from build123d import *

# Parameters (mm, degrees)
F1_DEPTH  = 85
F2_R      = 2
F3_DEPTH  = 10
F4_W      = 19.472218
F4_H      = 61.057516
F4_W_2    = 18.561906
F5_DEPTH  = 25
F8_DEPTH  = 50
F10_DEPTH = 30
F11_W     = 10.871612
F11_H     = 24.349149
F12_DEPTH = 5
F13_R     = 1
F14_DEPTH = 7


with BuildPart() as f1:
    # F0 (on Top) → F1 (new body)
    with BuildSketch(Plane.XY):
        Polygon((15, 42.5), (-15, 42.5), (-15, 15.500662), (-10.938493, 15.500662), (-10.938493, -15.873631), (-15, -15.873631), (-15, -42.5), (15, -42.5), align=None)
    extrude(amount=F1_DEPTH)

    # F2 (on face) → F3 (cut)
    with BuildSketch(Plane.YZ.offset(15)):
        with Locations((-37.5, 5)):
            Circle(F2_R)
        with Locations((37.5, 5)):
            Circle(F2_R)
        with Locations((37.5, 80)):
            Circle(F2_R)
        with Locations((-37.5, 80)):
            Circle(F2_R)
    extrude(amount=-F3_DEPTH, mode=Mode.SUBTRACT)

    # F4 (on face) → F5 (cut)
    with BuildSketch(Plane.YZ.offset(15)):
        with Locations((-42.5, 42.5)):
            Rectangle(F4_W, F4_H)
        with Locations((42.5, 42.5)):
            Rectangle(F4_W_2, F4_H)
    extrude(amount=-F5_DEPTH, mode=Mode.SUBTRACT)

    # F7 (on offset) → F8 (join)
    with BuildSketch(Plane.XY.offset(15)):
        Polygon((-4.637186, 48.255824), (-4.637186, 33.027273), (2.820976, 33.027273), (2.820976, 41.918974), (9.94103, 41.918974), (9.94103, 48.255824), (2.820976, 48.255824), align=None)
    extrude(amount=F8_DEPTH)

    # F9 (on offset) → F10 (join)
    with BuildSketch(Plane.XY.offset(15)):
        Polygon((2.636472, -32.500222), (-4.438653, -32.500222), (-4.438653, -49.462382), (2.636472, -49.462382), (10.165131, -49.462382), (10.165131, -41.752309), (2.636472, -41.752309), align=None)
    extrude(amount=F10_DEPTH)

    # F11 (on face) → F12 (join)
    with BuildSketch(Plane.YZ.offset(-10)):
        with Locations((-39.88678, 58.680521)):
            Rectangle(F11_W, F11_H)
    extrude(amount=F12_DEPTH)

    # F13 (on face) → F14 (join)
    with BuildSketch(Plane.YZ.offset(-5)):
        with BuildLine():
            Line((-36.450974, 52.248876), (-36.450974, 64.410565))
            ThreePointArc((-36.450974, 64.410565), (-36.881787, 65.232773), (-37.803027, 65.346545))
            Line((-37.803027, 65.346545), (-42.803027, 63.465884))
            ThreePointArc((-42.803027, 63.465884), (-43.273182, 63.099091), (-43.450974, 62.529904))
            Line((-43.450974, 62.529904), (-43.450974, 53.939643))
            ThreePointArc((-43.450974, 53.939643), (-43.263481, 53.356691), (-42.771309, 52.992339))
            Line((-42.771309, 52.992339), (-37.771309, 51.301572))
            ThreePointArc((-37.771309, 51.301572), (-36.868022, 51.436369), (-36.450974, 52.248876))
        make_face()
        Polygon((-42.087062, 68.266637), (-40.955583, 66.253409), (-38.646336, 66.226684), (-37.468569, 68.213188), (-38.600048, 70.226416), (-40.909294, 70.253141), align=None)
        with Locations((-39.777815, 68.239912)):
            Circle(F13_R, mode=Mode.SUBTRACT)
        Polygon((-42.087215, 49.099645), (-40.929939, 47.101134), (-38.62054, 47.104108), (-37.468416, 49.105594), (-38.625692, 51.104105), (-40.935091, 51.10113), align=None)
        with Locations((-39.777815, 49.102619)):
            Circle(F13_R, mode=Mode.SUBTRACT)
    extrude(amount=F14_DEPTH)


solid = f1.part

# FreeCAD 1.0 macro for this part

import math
import FreeCAD as App
import Part
import Sketcher
Q = App.Units.Quantity


def add_polygon(sketch, points):
    """Adds a closed chain of lines whose ends are joined by coincident constraints."""
    first, n = sketch.GeometryCount, len(points)
    for a, b in zip(points, points[1:] + points[:1]):
        sketch.addGeometry(Part.LineSegment(App.Vector(*a, 0), App.Vector(*b, 0)), False)
    for i in range(n):
        sketch.addConstraint(Sketcher.Constraint("Coincident", first + i, 2, first + (i + 1) % n, 1))

doc = App.newDocument("Part")
body = doc.addObject("PartDesign::Body", "Body")

sketch1 = doc.addObject("Sketcher::SketchObject", "Sketch")
body.addObject(sketch1)
sketch1.AttachmentSupport = (doc.XY_Plane, [""])
sketch1.MapMode = "FlatFace"
add_polygon(sketch1, [(15, 42.5), (-15, 42.5), (-15, 15.5), (-10.9, 15.5), (-10.9, -15.9), (-15, -15.9), (-15, -42.5), (15, -42.5)])
sketch1.addConstraint(Sketcher.Constraint("Horizontal", 0))
sketch1.addConstraint(Sketcher.Constraint("Vertical", 1))
sketch1.addConstraint(Sketcher.Constraint("Horizontal", 2))
sketch1.addConstraint(Sketcher.Constraint("Vertical", 3))
sketch1.addConstraint(Sketcher.Constraint("Horizontal", 4))
sketch1.addConstraint(Sketcher.Constraint("Vertical", 5))
sketch1.addConstraint(Sketcher.Constraint("Horizontal", 6))
sketch1.addConstraint(Sketcher.Constraint("Vertical", 7))
sketch1.addConstraint(Sketcher.Constraint("Symmetric", 0, 2, 6, 2, -1, 1))
sketch1.addConstraint(Sketcher.Constraint("Vertical", 1, 2, 4, 2))
sketch1.addConstraint(Sketcher.Constraint("DistanceX", 0, 2, 0, 1, Q("30 mm")))
sketch1.addConstraint(Sketcher.Constraint("DistanceY", 7, 1, 7, 2, Q("85 mm")))
sketch1.addConstraint(Sketcher.Constraint("DistanceY", 1, 2, 1, 1, Q("26.999338 mm")))
sketch1.addConstraint(Sketcher.Constraint("DistanceY", 5, 2, 5, 1, Q("26.626369 mm")))
sketch1.addConstraint(Sketcher.Constraint("DistanceX", 2, 1, 2, 2, Q("4.061507 mm")))
pad1 = doc.addObject("PartDesign::Pad", "Pad")
body.addObject(pad1)
pad1.Profile = sketch1
pad1.Length = 85

sketch2 = doc.addObject("Sketcher::SketchObject", "Sketch001")
body.addObject(sketch2)
sketch2.AttachmentSupport = (doc.YZ_Plane, [""])
sketch2.MapMode = "FlatFace"
sketch2.AttachmentOffset = App.Placement(App.Vector(0, 0, 15), App.Rotation())
sketch2.addGeometry(Part.Circle(App.Vector(-37.5, 5, 0), App.Vector(0, 0, 1), 2), False)
sketch2.addGeometry(Part.Circle(App.Vector(37.5, 5, 0), App.Vector(0, 0, 1), 2), False)
sketch2.addGeometry(Part.Circle(App.Vector(37.5, 80, 0), App.Vector(0, 0, 1), 2), False)
sketch2.addGeometry(Part.Circle(App.Vector(-37.5, 80, 0), App.Vector(0, 0, 1), 2), False)
sketch2.addConstraint(Sketcher.Constraint("Equal", 0, 1))
sketch2.addConstraint(Sketcher.Constraint("Equal", 1, 2))
sketch2.addConstraint(Sketcher.Constraint("Equal", 2, 3))
sketch2.addConstraint(Sketcher.Constraint("Symmetric", 0, 3, 1, 3, -2))
sketch2.addConstraint(Sketcher.Constraint("Symmetric", 2, 3, 3, 3, -2))
sketch2.addConstraint(Sketcher.Constraint("Vertical", 1, 3, 2, 3))
sketch2.addConstraint(Sketcher.Constraint("Diameter", 0, Q("4 mm")))
sketch2.addConstraint(Sketcher.Constraint("DistanceY", -1, 1, 0, 3, Q("5 mm")))
sketch2.addConstraint(Sketcher.Constraint("DistanceY", -1, 1, 2, 3, Q("80 mm")))
sketch2.addConstraint(Sketcher.Constraint("DistanceX", 0, 3, 1, 3, Q("75 mm")))
pocket1 = doc.addObject("PartDesign::Pocket", "Pocket")
body.addObject(pocket1)
pocket1.Profile = sketch2
pocket1.Length = 10

sketch3 = doc.addObject("Sketcher::SketchObject", "Sketch002")
body.addObject(sketch3)
sketch3.AttachmentSupport = (doc.YZ_Plane, [""])
sketch3.MapMode = "FlatFace"
sketch3.AttachmentOffset = App.Placement(App.Vector(0, 0, 15), App.Rotation())
add_polygon(sketch3, [(-52, 73), (-52, 12), (-33, 12), (-33, 73)])
add_polygon(sketch3, [(33, 73), (33, 12), (52, 12), (52, 73)])
sketch3.addConstraint(Sketcher.Constraint("Vertical", 0))
sketch3.addConstraint(Sketcher.Constraint("Horizontal", 1))
sketch3.addConstraint(Sketcher.Constraint("Vertical", 2))
sketch3.addConstraint(Sketcher.Constraint("Horizontal", 3))
sketch3.addConstraint(Sketcher.Constraint("Vertical", 4))
sketch3.addConstraint(Sketcher.Constraint("Horizontal", 5))
sketch3.addConstraint(Sketcher.Constraint("Vertical", 6))
sketch3.addConstraint(Sketcher.Constraint("Horizontal", 7))
sketch3.addConstraint(Sketcher.Constraint("Horizontal", 1, 2, 4, 2))
sketch3.addConstraint(Sketcher.Constraint("Horizontal", 3, 2, 6, 2))
sketch3.addConstraint(Sketcher.Constraint("DistanceX", 1, 1, 1, 2, Q("19.472218 mm")))
sketch3.addConstraint(Sketcher.Constraint("DistanceX", 5, 1, 5, 2, Q("18.561906 mm")))
sketch3.addConstraint(Sketcher.Constraint("DistanceY", 0, 2, 0, 1, Q("61.057516 mm")))
sketch3.addConstraint(Sketcher.Constraint("DistanceX", 0, 2, -1, 1, Q("52.236109 mm")))
sketch3.addConstraint(Sketcher.Constraint("DistanceX", 1, 2, 4, 2, Q("65.982938 mm")))
sketch3.addConstraint(Sketcher.Constraint("DistanceY", -1, 1, 0, 2, Q("11.971242 mm")))
pocket2 = doc.addObject("PartDesign::Pocket", "Pocket001")
body.addObject(pocket2)
pocket2.Profile = sketch3
pocket2.Length = 25

sketch4 = doc.addObject("Sketcher::SketchObject", "Sketch003")
body.addObject(sketch4)
sketch4.AttachmentSupport = (doc.XY_Plane, [""])
sketch4.MapMode = "FlatFace"
sketch4.AttachmentOffset = App.Placement(App.Vector(0, 0, 15), App.Rotation())
add_polygon(sketch4, [(-5, 48), (-5, 33), (3, 33), (3, 42), (10, 42), (10, 48)])
sketch4.addConstraint(Sketcher.Constraint("Vertical", 0))
sketch4.addConstraint(Sketcher.Constraint("Horizontal", 1))
sketch4.addConstraint(Sketcher.Constraint("Vertical", 2))
sketch4.addConstraint(Sketcher.Constraint("Horizontal", 3))
sketch4.addConstraint(Sketcher.Constraint("Vertical", 4))
sketch4.addConstraint(Sketcher.Constraint("Horizontal", 5))
sketch4.addConstraint(Sketcher.Constraint("DistanceY", 2, 1, 2, 2, Q("8.891701 mm")))
sketch4.addConstraint(Sketcher.Constraint("DistanceX", 1, 1, 1, 2, Q("7.458162 mm")))
sketch4.addConstraint(Sketcher.Constraint("DistanceY", 0, 2, 0, 1, Q("15.228551 mm")))
sketch4.addConstraint(Sketcher.Constraint("DistanceX", 3, 1, 3, 2, Q("7.120054 mm")))
sketch4.addConstraint(Sketcher.Constraint("DistanceX", -1, 1, 3, 2, Q("9.94103 mm")))
sketch4.addConstraint(Sketcher.Constraint("DistanceY", -1, 1, 0, 2, Q("33.027273 mm")))
pad2 = doc.addObject("PartDesign::Pad", "Pad001")
body.addObject(pad2)
pad2.Profile = sketch4
pad2.Length = 50

sketch5 = doc.addObject("Sketcher::SketchObject", "Sketch004")
body.addObject(sketch5)
sketch5.AttachmentSupport = (doc.XY_Plane, [""])
sketch5.MapMode = "FlatFace"
sketch5.AttachmentOffset = App.Placement(App.Vector(0, 0, 15), App.Rotation())
add_polygon(sketch5, [(3, -33), (-4, -33), (-4, -49), (10, -49), (10, -42), (3, -42)])
sketch5.addConstraint(Sketcher.Constraint("Horizontal", 0))
sketch5.addConstraint(Sketcher.Constraint("Vertical", 1))
sketch5.addConstraint(Sketcher.Constraint("Horizontal", 2))
sketch5.addConstraint(Sketcher.Constraint("Vertical", 3))
sketch5.addConstraint(Sketcher.Constraint("Horizontal", 4))
sketch5.addConstraint(Sketcher.Constraint("Vertical", 5))
sketch5.addConstraint(Sketcher.Constraint("DistanceX", 4, 2, 4, 1, Q("7.528659 mm")))
sketch5.addConstraint(Sketcher.Constraint("DistanceY", 1, 2, 1, 1, Q("16.96216 mm")))
sketch5.addConstraint(Sketcher.Constraint("DistanceX", 0, 2, 0, 1, Q("7.075125 mm")))
sketch5.addConstraint(Sketcher.Constraint("DistanceY", 3, 1, 3, 2, Q("7.710073 mm")))
sketch5.addConstraint(Sketcher.Constraint("DistanceY", 1, 2, -1, 1, Q("49.462382 mm")))
sketch5.addConstraint(Sketcher.Constraint("DistanceX", -1, 1, 2, 2, Q("10.165131 mm")))
pad3 = doc.addObject("PartDesign::Pad", "Pad002")
body.addObject(pad3)
pad3.Profile = sketch5
pad3.Length = 30

sketch6 = doc.addObject("Sketcher::SketchObject", "Sketch005")
body.addObject(sketch6)
sketch6.AttachmentSupport = (doc.YZ_Plane, [""])
sketch6.MapMode = "FlatFace"
sketch6.AttachmentOffset = App.Placement(App.Vector(0, 0, -10), App.Rotation())
add_polygon(sketch6, [(-45, 71), (-45, 47), (-34, 47), (-34, 71)])
sketch6.addConstraint(Sketcher.Constraint("Vertical", 0))
sketch6.addConstraint(Sketcher.Constraint("Horizontal", 1))
sketch6.addConstraint(Sketcher.Constraint("Vertical", 2))
sketch6.addConstraint(Sketcher.Constraint("Horizontal", 3))
sketch6.addConstraint(Sketcher.Constraint("DistanceX", 1, 1, 1, 2, Q("10.871612 mm")))
sketch6.addConstraint(Sketcher.Constraint("DistanceY", 0, 2, 0, 1, Q("24.349149 mm")))
sketch6.addConstraint(Sketcher.Constraint("DistanceX", 0, 2, -1, 1, Q("45.322586 mm")))
sketch6.addConstraint(Sketcher.Constraint("DistanceY", -1, 1, 0, 2, Q("46.505947 mm")))
pad4 = doc.addObject("PartDesign::Pad", "Pad003")
body.addObject(pad4)
pad4.Profile = sketch6
pad4.Length = 5

sketch7 = doc.addObject("Sketcher::SketchObject", "Sketch006")
body.addObject(sketch7)
sketch7.AttachmentSupport = (doc.YZ_Plane, [""])
sketch7.MapMode = "FlatFace"
sketch7.AttachmentOffset = App.Placement(App.Vector(0, 0, -5), App.Rotation())
sketch7.addGeometry(Part.LineSegment(App.Vector(-36.450974, 52.248876, 0), App.Vector(-36.450974, 64.410565, 0)), False)
sketch7.addGeometry(Part.ArcOfCircle(Part.Circle(App.Vector(-37.450974, 64.410565, 0), App.Vector(0, 0, 1), 1), math.radians(0.000007), math.radians(110.612934)), False)
sketch7.addGeometry(Part.LineSegment(App.Vector(-37.803027, 65.346545, 0), App.Vector(-42.803027, 63.465884, 0)), False)
sketch7.addGeometry(Part.ArcOfCircle(Part.Circle(App.Vector(-42.450974, 62.529904, 0), App.Vector(0, 0, 1), 1), math.radians(110.612945), math.radians(179.999988)), False)
sketch7.addGeometry(Part.LineSegment(App.Vector(-43.450974, 62.529904, 0), App.Vector(-43.450974, 53.939643, 0)), False)
sketch7.addGeometry(Part.ArcOfCircle(Part.Circle(App.Vector(-42.450976, 53.939642, 0), App.Vector(0, 0, 1), 0.999998), math.radians(179.999926), math.radians(251.316907)), False)
sketch7.addGeometry(Part.LineSegment(App.Vector(-42.771309, 52.992339, 0), App.Vector(-37.771309, 51.301572, 0)), False)
sketch7.addGeometry(Part.ArcOfCircle(Part.Circle(App.Vector(-37.450973, 52.248875, 0), App.Vector(0, 0, 1), 0.999999), math.radians(-108.683252), math.radians(0.000048)), False)
add_polygon(sketch7, [(-42.087062, 68.266637), (-40.955583, 66.253409), (-38.646336, 66.226684), (-37.468569, 68.213188), (-38.600048, 70.226416), (-40.909294, 70.253141)])
sketch7.addGeometry(Part.Circle(App.Vector(-39.777815, 68.239912, 0), App.Vector(0, 0, 1), 1), False)
add_polygon(sketch7, [(-42.087215, 49.099645), (-40.929939, 47.101134), (-38.62054, 47.104108), (-37.468416, 49.105594), (-38.625692, 51.104105), (-40.935091, 51.10113)])
sketch7.addGeometry(Part.Circle(App.Vector(-39.777815, 49.102619, 0), App.Vector(0, 0, 1), 1), False)
sketch7.addConstraint(Sketcher.Constraint("Coincident", 0, 2, 1, 1))
sketch7.addConstraint(Sketcher.Constraint("Coincident", 1, 2, 2, 1))
sketch7.addConstraint(Sketcher.Constraint("Coincident", 2, 2, 3, 1))
sketch7.addConstraint(Sketcher.Constraint("Coincident", 3, 2, 4, 1))
sketch7.addConstraint(Sketcher.Constraint("Coincident", 4, 2, 5, 1))
sketch7.addConstraint(Sketcher.Constraint("Coincident", 5, 2, 6, 1))
sketch7.addConstraint(Sketcher.Constraint("Coincident", 6, 2, 7, 1))
sketch7.addConstraint(Sketcher.Constraint("Coincident", 7, 2, 0, 1))
sketch7.addConstraint(Sketcher.Constraint("Vertical", 0))
sketch7.addConstraint(Sketcher.Constraint("Vertical", 4))
sketch7.addConstraint(Sketcher.Constraint("Diameter", 14, Q("2 mm")))
sketch7.addConstraint(Sketcher.Constraint("Diameter", 21, Q("2 mm")))
sketch7.addConstraint(Sketcher.Constraint("Radius", 1, Q("1 mm")))
sketch7.addConstraint(Sketcher.Constraint("Radius", 3, Q("1 mm")))
sketch7.addConstraint(Sketcher.Constraint("Radius", 7, Q("0.999999 mm")))
sketch7.addConstraint(Sketcher.Constraint("DistanceX", 3, 3, 1, 3, Q("5 mm")))
sketch7.addConstraint(Sketcher.Constraint("DistanceX", 2, 2, 1, 2, Q("5 mm")))
sketch7.addConstraint(Sketcher.Constraint("DistanceX", 5, 2, 6, 2, Q("5 mm")))
sketch7.addConstraint(Sketcher.Constraint("Radius", 5, Q("0.999998 mm")))
sketch7.addConstraint(Sketcher.Constraint("Distance", 8, Q("2.309401 mm")))
sketch7.addConstraint(Sketcher.Constraint("Distance", 9, Q("2.309402 mm")))
sketch7.addConstraint(Sketcher.Constraint("Distance", 10, Q("2.309401 mm")))
sketch7.addConstraint(Sketcher.Constraint("Distance", 11, Q("2.309401 mm")))
sketch7.addConstraint(Sketcher.Constraint("Distance", 12, Q("2.309401 mm")))
sketch7.addConstraint(Sketcher.Constraint("Distance", 13, Q("2.309402 mm")))
sketch7.addConstraint(Sketcher.Constraint("Distance", 15, Q("2.309401 mm")))
sketch7.addConstraint(Sketcher.Constraint("Distance", 16, Q("2.309401 mm")))
sketch7.addConstraint(Sketcher.Constraint("Distance", 17, Q("2.309402 mm")))
sketch7.addConstraint(Sketcher.Constraint("Distance", 18, Q("2.309401 mm")))
sketch7.addConstraint(Sketcher.Constraint("Distance", 19, Q("2.309401 mm")))
sketch7.addConstraint(Sketcher.Constraint("Distance", 20, Q("2.309401 mm")))
sketch7.addConstraint(Sketcher.Constraint("DistanceY", 0, 1, 0, 2, Q("12.161689 mm")))
sketch7.addConstraint(Sketcher.Constraint("DistanceY", 4, 2, 4, 1, Q("8.590261 mm")))
sketch7.addConstraint(Sketcher.Constraint("DistanceX", 21, 3, 17, 2, Q("2.309399 mm")))
sketch7.addConstraint(Sketcher.Constraint("DistanceX", 20, 2, 21, 3, Q("2.3094 mm")))
sketch7.addConstraint(Sketcher.Constraint("DistanceY", -1, 1, 5, 3, Q("53.939642 mm")))
sketch7.addConstraint(Sketcher.Constraint("DistanceY", -1, 1, 21, 3, Q("49.102619 mm")))
sketch7.addConstraint(Sketcher.Constraint("DistanceX", 5, 2, -1, 1, Q("42.771309 mm")))
sketch7.addConstraint(Sketcher.Constraint("DistanceY", -1, 1, 5, 2, Q("52.992339 mm")))
sketch7.addConstraint(Sketcher.Constraint("DistanceY", -1, 1, 8, 2, Q("66.253409 mm")))
sketch7.addConstraint(Sketcher.Constraint("DistanceX", 10, 2, -1, 1, Q("37.468569 mm")))
sketch7.addConstraint(Sketcher.Constraint("DistanceY", -1, 1, 10, 2, Q("68.213188 mm")))
sketch7.addConstraint(Sketcher.Constraint("DistanceY", -1, 1, 12, 2, Q("70.253141 mm")))
sketch7.addConstraint(Sketcher.Constraint("DistanceX", 15, 2, -1, 1, Q("40.929939 mm")))
sketch7.addConstraint(Sketcher.Constraint("DistanceX", 19, 2, -1, 1, Q("40.935091 mm")))
sketch7.addConstraint(Sketcher.Constraint("DistanceY", -1, 1, 19, 2, Q("51.10113 mm")))
sketch7.addConstraint(Sketcher.Constraint("DistanceY", 3, 3, 1, 3, Q("1.880661 mm")))
sketch7.addConstraint(Sketcher.Constraint("DistanceY", 7, 3, 3, 3, Q("10.281029 mm")))
sketch7.addConstraint(Sketcher.Constraint("DistanceX", 14, 3, 1, 3, Q("2.326841 mm")))
sketch7.addConstraint(Sketcher.Constraint("DistanceY", 3, 3, 14, 3, Q("5.710008 mm")))
sketch7.addConstraint(Sketcher.Constraint("DistanceY", 5, 3, 14, 3, Q("14.30027 mm")))
sketch7.addConstraint(Sketcher.Constraint("DistanceX", 21, 3, 7, 3, Q("2.326842 mm")))
sketch7.addConstraint(Sketcher.Constraint("DistanceY", 3, 3, 0, 2, Q("1.880661 mm")))
sketch7.addConstraint(Sketcher.Constraint("DistanceY", 1, 3, 1, 2, Q("0.93598 mm")))
sketch7.addConstraint(Sketcher.Constraint("DistanceY", 3, 2, 2, 2, Q("0.93598 mm")))
sketch7.addConstraint(Sketcher.Constraint("DistanceX", 8, 2, 14, 3, Q("1.177768 mm")))
sketch7.addConstraint(Sketcher.Constraint("DistanceX", 11, 2, 10, 2, Q("1.131479 mm")))
sketch7.addConstraint(Sketcher.Constraint("DistanceY", 16, 2, 21, 3, Q("1.998511 mm")))
pad5 = doc.addObject("PartDesign::Pad", "Pad004")
body.addObject(pad5)
pad5.Profile = sketch7
pad5.Length = 7

doc.recompute()
